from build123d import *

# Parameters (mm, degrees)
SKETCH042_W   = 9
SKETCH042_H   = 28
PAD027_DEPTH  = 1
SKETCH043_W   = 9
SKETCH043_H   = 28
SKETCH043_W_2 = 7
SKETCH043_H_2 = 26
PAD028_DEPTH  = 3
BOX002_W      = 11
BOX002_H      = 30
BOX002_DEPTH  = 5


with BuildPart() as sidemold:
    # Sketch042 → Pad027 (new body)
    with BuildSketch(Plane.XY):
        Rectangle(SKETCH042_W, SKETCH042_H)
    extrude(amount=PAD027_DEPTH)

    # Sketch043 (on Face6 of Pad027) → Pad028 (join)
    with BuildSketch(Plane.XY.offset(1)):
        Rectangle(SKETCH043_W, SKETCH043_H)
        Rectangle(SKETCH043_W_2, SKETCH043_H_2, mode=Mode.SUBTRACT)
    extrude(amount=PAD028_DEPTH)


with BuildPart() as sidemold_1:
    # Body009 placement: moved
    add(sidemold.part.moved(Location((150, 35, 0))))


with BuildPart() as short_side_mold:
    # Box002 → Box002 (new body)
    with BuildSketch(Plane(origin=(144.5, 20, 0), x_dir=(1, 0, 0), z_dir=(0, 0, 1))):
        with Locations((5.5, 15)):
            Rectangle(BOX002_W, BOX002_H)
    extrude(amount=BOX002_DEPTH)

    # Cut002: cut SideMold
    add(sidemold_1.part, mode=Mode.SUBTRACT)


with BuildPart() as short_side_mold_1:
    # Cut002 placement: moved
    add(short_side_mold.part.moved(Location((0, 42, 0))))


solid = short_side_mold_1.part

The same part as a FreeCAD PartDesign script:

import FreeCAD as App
import Part
import Sketcher
from FreeCAD import Vector
Q = App.Units.Quantity


def add_polygon(sketch, points):
    """Adds a closed chain of lines whose ends are joined by coincident constraints."""
    first, n = sketch.GeometryCount, len(points)
    for a, b in zip(points, points[1:] + points[:1]):
        sketch.addGeometry(Part.LineSegment(App.Vector(*a, 0), App.Vector(*b, 0)), False)
    for i in range(n):
        sketch.addConstraint(Sketcher.Constraint("Coincident", first + i, 2, first + (i + 1) % n, 1))

doc = App.newDocument("Part")
params = doc.addObject("Spreadsheet::Sheet", "Params")
for row, (alias, value) in enumerate([
    ("sketch1_width", "9 mm"),
    ("sketch1_height", "28 mm"),
    ("pad1_length", "1 mm"),
    ("sketch2_width", "9 mm"),
    ("sketch2_width2", "7 mm"),
    ("sketch2_height", "28 mm"),
    ("sketch2_height2", "26 mm"),
    ("pad2_length", "3 mm"),
    ("sketch3_width", "11 mm"),
    ("sketch3_height", "30 mm"),
    ("pad3_length", "5 mm"),
], start=1):
    params.set(f"A{row}", alias)
    params.set(f"B{row}", "=" + value)
    params.setAlias(f"B{row}", alias)

body = doc.addObject("PartDesign::Body", "Body")

sketch1 = body.newObject("Sketcher::SketchObject", "Sketch")
sketch1.AttachmentSupport = (doc.getObject("XY_Plane"), [""])
sketch1.MapMode = "FlatFace"
add_polygon(sketch1, [(-4.5, 14), (-4.5, -14), (4.5, -14), (4.5, 14)])
sketch1.addConstraint(Sketcher.Constraint("Vertical", 0))
sketch1.addConstraint(Sketcher.Constraint("Horizontal", 1))
sketch1.addConstraint(Sketcher.Constraint("Vertical", 2))
sketch1.addConstraint(Sketcher.Constraint("Horizontal", 3))
sketch1.addConstraint(Sketcher.Constraint("Symmetric", 0, 2, 2, 2, -1, 1))
sketch1.addConstraint(Sketcher.Constraint("DistanceX", 1, 1, 1, 2, Q("9 mm")))
sketch1.addConstraint(Sketcher.Constraint("DistanceY", 0, 2, 0, 1, Q("28 mm")))
sketch1.setExpression("Constraints[9]", "Params.sketch1_width")
sketch1.setExpression("Constraints[10]", "Params.sketch1_height")
pad1 = body.newObject("PartDesign::Pad", "Pad")
pad1.Profile = sketch1
pad1.setExpression("Length", "Params.pad1_length")

sketch2 = body.newObject("Sketcher::SketchObject", "Sketch001")
sketch2.AttachmentSupport = (doc.getObject("XY_Plane"), [""])
sketch2.MapMode = "FlatFace"
sketch2.AttachmentOffset = App.Placement(Vector(0, 0, 1), App.Rotation())
add_polygon(sketch2, [(-4.5, 14), (-4.5, -14), (4.5, -14), (4.5, 14)])
add_polygon(sketch2, [(3.5, -13), (-3.5, -13), (-3.5, 13), (3.5, 13)])
sketch2.addConstraint(Sketcher.Constraint("Vertical", 0))
sketch2.addConstraint(Sketcher.Constraint("Horizontal", 1))
sketch2.addConstraint(Sketcher.Constraint("Vertical", 2))
sketch2.addConstraint(Sketcher.Constraint("Horizontal", 3))
sketch2.addConstraint(Sketcher.Constraint("Horizontal", 4))
sketch2.addConstraint(Sketcher.Constraint("Vertical", 5))
sketch2.addConstraint(Sketcher.Constraint("Horizontal", 6))
sketch2.addConstraint(Sketcher.Constraint("Vertical", 7))
sketch2.addConstraint(Sketcher.Constraint("Symmetric", 0, 2, 2, 2, -1, 1))
sketch2.addConstraint(Sketcher.Constraint("Symmetric", 4, 2, 6, 2, -1, 1))
sketch2.addConstraint(Sketcher.Constraint("DistanceX", 1, 1, 1, 2, Q("9 mm")))
sketch2.addConstraint(Sketcher.Constraint("DistanceX", 4, 2, 4, 1, Q("7 mm")))
sketch2.addConstraint(Sketcher.Constraint("DistanceY", 0, 2, 0, 1, Q("28 mm")))
sketch2.addConstraint(Sketcher.Constraint("DistanceY", 5, 1, 5, 2, Q("26 mm")))
sketch2.setExpression("Constraints[18]", "Params.sketch2_width")
sketch2.setExpression("Constraints[19]", "Params.sketch2_width2")
sketch2.setExpression("Constraints[20]", "Params.sketch2_height")
sketch2.setExpression("Constraints[21]", "Params.sketch2_height2")
pad2 = body.newObject("PartDesign::Pad", "Pad001")
pad2.Profile = sketch2
pad2.setExpression("Length", "Params.pad2_length")
body2 = doc.addObject("PartDesign::Body", "Body001")
doc.recompute()

body.Placement = App.Placement(Vector(150, 35, 0), App.Rotation(Vector(0, 0, 1), 0))
boolean = body2.newObject("PartDesign::Boolean", "Boolean")
boolean.Type = "Fuse"
boolean.addObjects([body])
body3 = doc.addObject("PartDesign::Body", "Body002")

sketch3 = body3.newObject("Sketcher::SketchObject", "Sketch002")
sketch3.AttachmentSupport = (doc.getObject("XY_Plane002"), [""])
sketch3.MapMode = "FlatFace"
add_polygon(sketch3, [(144.5, 50), (144.5, 20), (155.5, 20), (155.5, 50)])
sketch3.addConstraint(Sketcher.Constraint("Vertical", 0))
sketch3.addConstraint(Sketcher.Constraint("Horizontal", 1))
sketch3.addConstraint(Sketcher.Constraint("Vertical", 2))
sketch3.addConstraint(Sketcher.Constraint("Horizontal", 3))
sketch3.addConstraint(Sketcher.Constraint("DistanceX", 1, 1, 1, 2, Q("11 mm")))
sketch3.addConstraint(Sketcher.Constraint("DistanceY", 0, 2, 0, 1, Q("30 mm")))
sketch3.addConstraint(Sketcher.Constraint("DistanceY", -1, 1, 0, 2, Q("20 mm")))
sketch3.addConstraint(Sketcher.Constraint("DistanceX", -1, 1, 0, 2, Q("144.5 mm")))
sketch3.setExpression("Constraints[8]", "Params.sketch3_width")
sketch3.setExpression("Constraints[9]", "Params.sketch3_height")
pad3 = body3.newObject("PartDesign::Pad", "Pad002")
pad3.Profile = sketch3
pad3.setExpression("Length", "Params.pad3_length")
doc.recompute()

boolean2 = body3.newObject("PartDesign::Boolean", "Boolean001")
boolean2.Type = "Cut"
boolean2.addObjects([body2])
body4 = doc.addObject("PartDesign::Body", "Body003")
doc.recompute()

body3.Placement = App.Placement(Vector(0, 42, 0), App.Rotation(Vector(0, 0, 1), 0))
boolean3 = body4.newObject("PartDesign::Boolean", "Boolean002")
boolean3.Type = "Fuse"
boolean3.addObjects([body3])

doc.recompute()
